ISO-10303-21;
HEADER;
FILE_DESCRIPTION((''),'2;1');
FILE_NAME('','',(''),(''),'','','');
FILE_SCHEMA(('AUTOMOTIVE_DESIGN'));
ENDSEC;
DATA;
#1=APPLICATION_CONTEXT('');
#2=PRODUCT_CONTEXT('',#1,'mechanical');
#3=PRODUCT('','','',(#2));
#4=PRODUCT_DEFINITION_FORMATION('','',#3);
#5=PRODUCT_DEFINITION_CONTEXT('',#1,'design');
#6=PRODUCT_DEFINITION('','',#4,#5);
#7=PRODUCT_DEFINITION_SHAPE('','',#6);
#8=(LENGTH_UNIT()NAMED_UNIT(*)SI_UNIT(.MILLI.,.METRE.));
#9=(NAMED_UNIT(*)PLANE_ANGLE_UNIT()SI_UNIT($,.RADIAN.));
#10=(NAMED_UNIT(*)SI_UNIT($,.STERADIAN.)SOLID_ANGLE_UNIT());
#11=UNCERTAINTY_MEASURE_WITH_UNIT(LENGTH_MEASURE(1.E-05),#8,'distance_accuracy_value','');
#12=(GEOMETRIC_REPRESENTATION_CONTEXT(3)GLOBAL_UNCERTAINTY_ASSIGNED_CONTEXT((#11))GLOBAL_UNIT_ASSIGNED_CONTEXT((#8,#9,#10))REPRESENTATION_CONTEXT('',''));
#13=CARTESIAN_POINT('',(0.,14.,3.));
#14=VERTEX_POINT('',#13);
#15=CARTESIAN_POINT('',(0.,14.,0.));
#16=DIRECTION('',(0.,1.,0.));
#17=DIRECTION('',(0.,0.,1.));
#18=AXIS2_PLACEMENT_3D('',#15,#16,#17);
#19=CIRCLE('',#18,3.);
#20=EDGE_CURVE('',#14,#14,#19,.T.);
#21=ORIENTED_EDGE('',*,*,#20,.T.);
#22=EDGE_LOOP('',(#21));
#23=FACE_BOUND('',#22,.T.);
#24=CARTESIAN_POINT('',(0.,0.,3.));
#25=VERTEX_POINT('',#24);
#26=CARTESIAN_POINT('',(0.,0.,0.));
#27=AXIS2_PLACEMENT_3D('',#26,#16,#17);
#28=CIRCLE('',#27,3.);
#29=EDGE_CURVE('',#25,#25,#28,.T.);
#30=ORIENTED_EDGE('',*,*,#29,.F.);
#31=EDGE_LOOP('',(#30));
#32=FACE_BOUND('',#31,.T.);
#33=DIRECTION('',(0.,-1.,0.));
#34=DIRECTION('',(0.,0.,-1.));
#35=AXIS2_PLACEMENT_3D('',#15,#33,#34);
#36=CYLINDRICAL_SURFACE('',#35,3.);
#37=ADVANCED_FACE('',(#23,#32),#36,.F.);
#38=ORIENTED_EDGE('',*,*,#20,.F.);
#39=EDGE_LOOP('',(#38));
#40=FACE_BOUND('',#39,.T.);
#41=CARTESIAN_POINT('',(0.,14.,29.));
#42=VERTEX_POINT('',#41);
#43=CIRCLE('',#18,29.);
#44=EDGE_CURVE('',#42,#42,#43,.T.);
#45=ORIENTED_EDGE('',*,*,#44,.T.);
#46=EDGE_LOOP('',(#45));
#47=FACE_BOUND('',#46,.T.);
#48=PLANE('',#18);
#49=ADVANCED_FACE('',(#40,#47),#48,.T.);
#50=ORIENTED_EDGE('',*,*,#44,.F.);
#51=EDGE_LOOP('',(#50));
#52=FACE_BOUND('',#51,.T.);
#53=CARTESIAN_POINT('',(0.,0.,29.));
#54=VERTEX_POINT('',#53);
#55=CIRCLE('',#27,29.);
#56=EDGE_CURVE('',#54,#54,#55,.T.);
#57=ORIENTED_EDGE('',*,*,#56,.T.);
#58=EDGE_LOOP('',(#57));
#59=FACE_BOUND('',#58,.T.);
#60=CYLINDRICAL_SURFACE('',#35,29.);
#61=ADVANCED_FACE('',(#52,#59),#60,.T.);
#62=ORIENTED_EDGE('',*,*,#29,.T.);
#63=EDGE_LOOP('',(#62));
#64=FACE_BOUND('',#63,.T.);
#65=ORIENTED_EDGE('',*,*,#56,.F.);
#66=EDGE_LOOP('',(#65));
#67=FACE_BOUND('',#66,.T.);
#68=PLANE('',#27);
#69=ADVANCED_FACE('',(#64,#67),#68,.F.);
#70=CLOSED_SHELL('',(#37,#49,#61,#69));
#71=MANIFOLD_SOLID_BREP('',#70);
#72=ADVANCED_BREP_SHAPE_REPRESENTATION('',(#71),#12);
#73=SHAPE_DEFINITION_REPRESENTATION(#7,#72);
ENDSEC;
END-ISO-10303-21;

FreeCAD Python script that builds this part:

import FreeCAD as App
import Part
import Sketcher

doc = App.newDocument("Part")
body = doc.addObject("PartDesign::Body", "Body")

sketch1 = doc.addObject("Sketcher::SketchObject", "Sketch")
body.addObject(sketch1)
sketch1.AttachmentSupport = (doc.XZ_Plane, [""])
sketch1.MapMode = "FlatFace"
sketch1.addGeometry(Part.Circle(App.Vector(0, 0, 0), App.Vector(0, 0, 1), 29), False)
sketch1.addGeometry(Part.Circle(App.Vector(0, 0, 0), App.Vector(0, 0, 1), 3), False)
sketch1.addConstraint(Sketcher.Constraint("Coincident", 0, 3, -1, 1))
sketch1.addConstraint(Sketcher.Constraint("Coincident", 1, 3, -1, 1))
sketch1.addConstraint(Sketcher.Constraint("Diameter", 0, 58.0))
sketch1.addConstraint(Sketcher.Constraint("Diameter", 1, 6.0))
pad1 = doc.addObject("PartDesign::Pad", "Pad")
body.addObject(pad1)
pad1.Profile = sketch1
pad1.Length = 14
pad1.Reversed = True

doc.recompute()
